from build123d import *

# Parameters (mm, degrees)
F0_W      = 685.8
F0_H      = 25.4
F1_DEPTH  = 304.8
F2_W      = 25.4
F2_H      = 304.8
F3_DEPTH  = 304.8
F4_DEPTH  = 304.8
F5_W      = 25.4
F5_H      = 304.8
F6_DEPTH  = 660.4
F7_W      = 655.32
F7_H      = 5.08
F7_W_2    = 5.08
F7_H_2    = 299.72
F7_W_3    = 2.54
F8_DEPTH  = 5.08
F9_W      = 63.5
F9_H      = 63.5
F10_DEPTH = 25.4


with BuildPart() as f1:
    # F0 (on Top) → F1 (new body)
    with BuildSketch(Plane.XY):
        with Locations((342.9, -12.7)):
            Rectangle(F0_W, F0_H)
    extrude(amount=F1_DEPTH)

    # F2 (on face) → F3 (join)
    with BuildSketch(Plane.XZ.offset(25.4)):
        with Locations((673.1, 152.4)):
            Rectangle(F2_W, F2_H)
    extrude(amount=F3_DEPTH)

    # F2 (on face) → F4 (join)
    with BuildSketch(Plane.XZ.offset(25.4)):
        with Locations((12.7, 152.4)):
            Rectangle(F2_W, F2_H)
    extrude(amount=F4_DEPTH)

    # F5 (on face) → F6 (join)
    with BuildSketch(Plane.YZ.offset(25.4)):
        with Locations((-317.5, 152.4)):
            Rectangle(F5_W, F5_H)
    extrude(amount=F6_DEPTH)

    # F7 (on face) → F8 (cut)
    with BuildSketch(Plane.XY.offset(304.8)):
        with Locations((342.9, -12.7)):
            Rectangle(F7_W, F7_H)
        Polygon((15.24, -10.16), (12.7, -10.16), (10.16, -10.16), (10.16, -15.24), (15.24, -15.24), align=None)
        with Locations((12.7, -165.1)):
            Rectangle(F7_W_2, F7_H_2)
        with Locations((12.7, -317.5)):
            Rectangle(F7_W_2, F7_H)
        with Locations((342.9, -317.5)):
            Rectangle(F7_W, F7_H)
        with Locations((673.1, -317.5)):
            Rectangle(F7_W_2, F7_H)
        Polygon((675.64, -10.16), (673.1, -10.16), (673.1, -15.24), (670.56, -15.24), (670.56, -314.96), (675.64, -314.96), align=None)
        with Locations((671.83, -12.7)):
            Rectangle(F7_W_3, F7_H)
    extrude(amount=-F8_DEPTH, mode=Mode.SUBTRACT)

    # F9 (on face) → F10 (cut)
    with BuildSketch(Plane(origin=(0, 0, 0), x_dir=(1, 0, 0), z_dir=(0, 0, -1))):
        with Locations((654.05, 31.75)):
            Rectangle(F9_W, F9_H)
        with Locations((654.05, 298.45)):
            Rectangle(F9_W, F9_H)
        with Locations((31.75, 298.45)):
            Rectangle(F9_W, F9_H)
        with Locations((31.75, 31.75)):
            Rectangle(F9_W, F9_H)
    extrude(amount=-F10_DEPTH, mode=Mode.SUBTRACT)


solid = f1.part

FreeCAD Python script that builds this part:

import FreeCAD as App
import Part
import Sketcher
from FreeCAD import Vector
Q = App.Units.Quantity


def add_polygon(sketch, points):
    """Adds a closed chain of lines whose ends are joined by coincident constraints."""
    first, n = sketch.GeometryCount, len(points)
    for a, b in zip(points, points[1:] + points[:1]):
        sketch.addGeometry(Part.LineSegment(App.Vector(*a, 0), App.Vector(*b, 0)), False)
    for i in range(n):
        sketch.addConstraint(Sketcher.Constraint("Coincident", first + i, 2, first + (i + 1) % n, 1))

doc = App.newDocument("Part")
body = doc.addObject("PartDesign::Body", "Body")

# Sketch on XY plane
sketch1 = doc.addObject("Sketcher::SketchObject", "Sketch")
body.addObject(sketch1)
sketch1.AttachmentSupport = (doc.XY_Plane, [""])
sketch1.MapMode = "FlatFace"
add_polygon(sketch1, [(0, 0), (0, -25), (686, -25), (686, 0)])  # lines 0-3
sketch1.addConstraint([
    Sketcher.Constraint("Vertical", 0),
    Sketcher.Constraint("Horizontal", 1),
    Sketcher.Constraint("Vertical", 2),
    Sketcher.Constraint("Horizontal", 3),
    Sketcher.Constraint("Coincident", 3, 2, -1, 1),
    Sketcher.Constraint("DistanceX", 1, 1, 1, 2, Q("27 in")),
    Sketcher.Constraint("DistanceY", 0, 2, 0, 1, Q("1 in")),
])
pad1 = doc.addObject("PartDesign::Pad", "Pad")
body.addObject(pad1)
pad1.Profile = sketch1
pad1.Length = Q("12 in")

# Sketch on XZ plane
sketch2 = doc.addObject("Sketcher::SketchObject", "Sketch001")
body.addObject(sketch2)
sketch2.AttachmentSupport = (doc.XZ_Plane, [""])
sketch2.MapMode = "FlatFace"
sketch2.AttachmentOffset = App.Placement(Vector(0, 0, 1 * 25.4), App.Rotation())
add_polygon(sketch2, [(660, 305), (660, 0), (686, 0), (686, 305)])  # lines 0-3
sketch2.addConstraint([
    Sketcher.Constraint("Vertical", 0),
    Sketcher.Constraint("Horizontal", 1),
    Sketcher.Constraint("Vertical", 2),
    Sketcher.Constraint("Horizontal", 3),
    Sketcher.Constraint("PointOnObject", 0, 2, -1),
    Sketcher.Constraint("DistanceX", 1, 1, 1, 2, Q("1 in")),
    Sketcher.Constraint("DistanceY", 0, 2, 0, 1, Q("12 in")),
    Sketcher.Constraint("DistanceX", -1, 1, 0, 2, Q("26 in")),
])
pad2 = doc.addObject("PartDesign::Pad", "Pad001")
body.addObject(pad2)
pad2.Profile = sketch2
pad2.Length = Q("12 in")

# Sketch on XZ plane
sketch3 = doc.addObject("Sketcher::SketchObject", "Sketch002")
body.addObject(sketch3)
sketch3.AttachmentSupport = (doc.XZ_Plane, [""])
sketch3.MapMode = "FlatFace"
sketch3.AttachmentOffset = App.Placement(Vector(0, 0, 1 * 25.4), App.Rotation())
add_polygon(sketch3, [(0, 305), (0, 0), (25, 0), (25, 305)])  # lines 0-3
sketch3.addConstraint([
    Sketcher.Constraint("Vertical", 0),
    Sketcher.Constraint("Horizontal", 1),
    Sketcher.Constraint("Vertical", 2),
    Sketcher.Constraint("Horizontal", 3),
    Sketcher.Constraint("Coincident", 0, 2, -1, 1),
    Sketcher.Constraint("DistanceX", 1, 1, 1, 2, Q("1 in")),
    Sketcher.Constraint("DistanceY", 0, 2, 0, 1, Q("12 in")),
])
pad3 = doc.addObject("PartDesign::Pad", "Pad002")
body.addObject(pad3)
pad3.Profile = sketch3
pad3.Length = Q("12 in")

# Sketch on YZ plane
sketch4 = doc.addObject("Sketcher::SketchObject", "Sketch003")
body.addObject(sketch4)
sketch4.AttachmentSupport = (doc.YZ_Plane, [""])
sketch4.MapMode = "FlatFace"
sketch4.AttachmentOffset = App.Placement(Vector(0, 0, 1 * 25.4), App.Rotation())
add_polygon(sketch4, [(-330, 305), (-330, 0), (-305, 0), (-305, 305)])  # lines 0-3
sketch4.addConstraint([
    Sketcher.Constraint("Vertical", 0),
    Sketcher.Constraint("Horizontal", 1),
    Sketcher.Constraint("Vertical", 2),
    Sketcher.Constraint("Horizontal", 3),
    Sketcher.Constraint("PointOnObject", 0, 2, -1),
    Sketcher.Constraint("DistanceX", 1, 1, 1, 2, Q("1 in")),
    Sketcher.Constraint("DistanceY", 0, 2, 0, 1, Q("12 in")),
    Sketcher.Constraint("DistanceX", 0, 2, -1, 1, Q("13 in")),
])
pad4 = doc.addObject("PartDesign::Pad", "Pad003")
body.addObject(pad4)
pad4.Profile = sketch4
pad4.Length = Q("26 in")

# Sketch on XY plane
sketch5 = doc.addObject("Sketcher::SketchObject", "Sketch004")
body.addObject(sketch5)
sketch5.AttachmentSupport = (doc.XY_Plane, [""])
sketch5.MapMode = "FlatFace"
sketch5.AttachmentOffset = App.Placement(Vector(0, 0, 12 * 25.4), App.Rotation())
add_polygon(sketch5, [(676, -10), (10, -10), (10, -320), (676, -320)])  # lines 0-3
add_polygon(sketch5, [(15, -15), (671, -15), (671, -315), (15, -315)])  # lines 4-7
sketch5.addConstraint([
    Sketcher.Constraint("Horizontal", 0),
    Sketcher.Constraint("Vertical", 1),
    Sketcher.Constraint("Horizontal", 2),
    Sketcher.Constraint("Vertical", 3),
    Sketcher.Constraint("Horizontal", 4),
    Sketcher.Constraint("Vertical", 5),
    Sketcher.Constraint("Horizontal", 6),
    Sketcher.Constraint("Vertical", 7),
    Sketcher.Constraint("DistanceX", 0, 2, 0, 1, Q("26.2 in")),
    Sketcher.Constraint("DistanceX", 4, 1, 4, 2, Q("25.8 in")),
    Sketcher.Constraint("DistanceY", 1, 2, 1, 1, Q("12.2 in")),
    Sketcher.Constraint("DistanceY", 5, 2, 5, 1, Q("11.8 in")),
    Sketcher.Constraint("DistanceY", 2, 2, 4, 2, Q("12 in")),
    Sketcher.Constraint("DistanceX", 0, 2, 4, 2, Q("26 in")),
    Sketcher.Constraint("DistanceX", -1, 1, 0, 2, Q("0.4 in")),
    Sketcher.Constraint("DistanceY", 0, 2, -1, 1, Q("0.4 in")),
])
pocket1 = doc.addObject("PartDesign::Pocket", "Pocket")
body.addObject(pocket1)
pocket1.Profile = sketch5
pocket1.Length = Q("0.2 in")

# Sketch on XY plane
sketch6 = doc.addObject("Sketcher::SketchObject", "Sketch005")
body.addObject(sketch6)
sketch6.AttachmentSupport = (doc.XY_Plane, [""])
sketch6.MapMode = "FlatFace"
add_polygon(sketch6, [(622, -64), (622, 0), (686, 0), (686, -64)])  # lines 0-3
add_polygon(sketch6, [(622, -330), (622, -267), (686, -267), (686, -330)])  # lines 4-7
add_polygon(sketch6, [(0, -330), (0, -267), (64, -267), (64, -330)])  # lines 8-11
add_polygon(sketch6, [(0, -64), (0, 0), (64, 0), (64, -64)])  # lines 12-15
sketch6.addConstraint([
    Sketcher.Constraint("Vertical", 0),
    Sketcher.Constraint("Horizontal", 1),
    Sketcher.Constraint("Vertical", 2),
    Sketcher.Constraint("Horizontal", 3),
    Sketcher.Constraint("Vertical", 4),
    Sketcher.Constraint("Horizontal", 5),
    Sketcher.Constraint("Vertical", 6),
    Sketcher.Constraint("Horizontal", 7),
    Sketcher.Constraint("Vertical", 8),
    Sketcher.Constraint("Horizontal", 9),
    Sketcher.Constraint("Vertical", 10),
    Sketcher.Constraint("Horizontal", 11),
    Sketcher.Constraint("Vertical", 12),
    Sketcher.Constraint("Horizontal", 13),
    Sketcher.Constraint("Vertical", 14),
    Sketcher.Constraint("Horizontal", 15),
    Sketcher.Constraint("Coincident", 12, 2, -1, 1),
    Sketcher.Constraint("PointOnObject", 0, 2, -1),
    Sketcher.Constraint("PointOnObject", 8, 2, -2),
    Sketcher.Constraint("Horizontal", 5, 2, 8, 2),
    Sketcher.Constraint("Horizontal", 7, 2, 10, 2),
    Sketcher.Constraint("Horizontal", 3, 2, 14, 2),
    Sketcher.Constraint("Vertical", 3, 2, 4, 2),
    Sketcher.Constraint("Vertical", 2, 2, 5, 2),
    Sketcher.Constraint("Vertical", 10, 2, 13, 2),
    Sketcher.Constraint("Equal", 7, 9),
    Sketcher.Constraint("Equal", 15, 0),
    Sketcher.Constraint("Equal", 2, 4),
    Sketcher.Constraint("DistanceX", 1, 1, 1, 2, Q("2.5 in")),
    Sketcher.Constraint("DistanceX", -1, 1, 1, 2, Q("27 in")),
    Sketcher.Constraint("DistanceY", 6, 2, -1, 1, Q("13 in")),
])
pocket2 = doc.addObject("PartDesign::Pocket", "Pocket001")
body.addObject(pocket2)
pocket2.Profile = sketch6
pocket2.Length = Q("1 in")
pocket2.Reversed = True

doc.recompute()
